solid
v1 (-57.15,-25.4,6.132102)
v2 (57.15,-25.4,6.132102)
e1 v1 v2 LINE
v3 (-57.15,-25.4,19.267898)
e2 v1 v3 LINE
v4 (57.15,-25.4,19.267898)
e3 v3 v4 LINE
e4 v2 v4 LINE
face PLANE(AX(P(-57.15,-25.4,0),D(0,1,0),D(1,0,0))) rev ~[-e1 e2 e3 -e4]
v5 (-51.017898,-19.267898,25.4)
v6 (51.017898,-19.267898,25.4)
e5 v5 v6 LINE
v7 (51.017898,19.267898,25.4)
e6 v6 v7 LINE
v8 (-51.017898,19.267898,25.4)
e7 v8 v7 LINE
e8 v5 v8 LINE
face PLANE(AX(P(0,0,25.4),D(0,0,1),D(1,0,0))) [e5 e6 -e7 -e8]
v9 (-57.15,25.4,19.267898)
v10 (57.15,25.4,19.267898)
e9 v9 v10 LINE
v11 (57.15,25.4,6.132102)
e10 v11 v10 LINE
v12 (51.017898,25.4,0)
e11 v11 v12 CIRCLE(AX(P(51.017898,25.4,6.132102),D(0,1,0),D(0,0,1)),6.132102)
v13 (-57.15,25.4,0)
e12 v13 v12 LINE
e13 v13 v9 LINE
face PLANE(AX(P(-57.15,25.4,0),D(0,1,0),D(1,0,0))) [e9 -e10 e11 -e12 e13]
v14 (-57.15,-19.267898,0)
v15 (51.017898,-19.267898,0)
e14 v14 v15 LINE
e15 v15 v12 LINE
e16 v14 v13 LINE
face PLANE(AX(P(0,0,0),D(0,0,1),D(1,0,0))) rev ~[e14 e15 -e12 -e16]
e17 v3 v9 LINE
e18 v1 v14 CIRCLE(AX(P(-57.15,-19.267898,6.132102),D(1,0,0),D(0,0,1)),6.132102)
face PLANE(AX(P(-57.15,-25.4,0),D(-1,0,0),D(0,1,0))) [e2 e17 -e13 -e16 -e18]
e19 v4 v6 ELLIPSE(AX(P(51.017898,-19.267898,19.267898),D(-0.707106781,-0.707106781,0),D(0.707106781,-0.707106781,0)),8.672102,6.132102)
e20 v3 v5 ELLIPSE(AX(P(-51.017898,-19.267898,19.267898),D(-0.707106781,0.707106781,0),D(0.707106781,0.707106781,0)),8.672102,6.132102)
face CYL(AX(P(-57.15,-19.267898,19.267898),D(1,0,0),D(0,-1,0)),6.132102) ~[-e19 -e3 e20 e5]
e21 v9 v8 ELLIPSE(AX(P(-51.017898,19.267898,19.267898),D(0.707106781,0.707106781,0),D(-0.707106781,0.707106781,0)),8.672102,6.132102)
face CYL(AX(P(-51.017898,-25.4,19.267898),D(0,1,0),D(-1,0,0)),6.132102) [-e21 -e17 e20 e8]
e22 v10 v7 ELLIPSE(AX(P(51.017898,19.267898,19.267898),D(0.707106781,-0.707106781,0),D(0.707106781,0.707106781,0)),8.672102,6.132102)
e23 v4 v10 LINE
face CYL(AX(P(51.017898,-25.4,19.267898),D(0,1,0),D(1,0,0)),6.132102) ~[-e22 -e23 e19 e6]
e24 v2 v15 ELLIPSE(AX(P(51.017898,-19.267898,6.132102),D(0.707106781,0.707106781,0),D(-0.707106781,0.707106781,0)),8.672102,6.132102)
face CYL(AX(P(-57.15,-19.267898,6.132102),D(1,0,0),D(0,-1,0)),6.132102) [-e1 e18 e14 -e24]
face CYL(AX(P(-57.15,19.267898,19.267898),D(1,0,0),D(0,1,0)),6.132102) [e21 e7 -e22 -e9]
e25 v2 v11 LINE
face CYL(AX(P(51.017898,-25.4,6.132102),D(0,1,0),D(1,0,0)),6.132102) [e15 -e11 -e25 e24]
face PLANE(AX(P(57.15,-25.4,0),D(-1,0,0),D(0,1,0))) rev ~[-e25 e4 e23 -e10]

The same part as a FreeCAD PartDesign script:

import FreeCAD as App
import Part
import Sketcher
from FreeCAD import Vector
Q = App.Units.Quantity


def edges_at(feature, points):
    """Names of the edges that pass closest to the given points."""
    edges = feature.Shape.Edges
    near = lambda p: min(range(len(edges)), key=lambda i: edges[i].distToShape(Part.Vertex(*p))[0])
    return sorted({f"Edge{near(p) + 1}" for p in points})


def add_polygon(sketch, points):
    """Adds a closed chain of lines whose ends are joined by coincident constraints."""
    first, n = sketch.GeometryCount, len(points)
    for a, b in zip(points, points[1:] + points[:1]):
        sketch.addGeometry(Part.LineSegment(App.Vector(*a, 0), App.Vector(*b, 0)), False)
    for i in range(n):
        sketch.addConstraint(Sketcher.Constraint("Coincident", first + i, 2, first + (i + 1) % n, 1))

doc = App.newDocument("Part")
body = doc.addObject("PartDesign::Body", "Body")

# Sketch on XY plane
sketch1 = body.newObject("Sketcher::SketchObject", "Sketch")
sketch1.AttachmentSupport = (doc.getObject("XY_Plane"), [""])
sketch1.MapMode = "FlatFace"
add_polygon(sketch1, [(-57, 25), (-57, -25), (57, -25), (57, 25)])  # lines 0-3
sketch1.addConstraint([
    Sketcher.Constraint("Vertical", 0),
    Sketcher.Constraint("Horizontal", 1),
    Sketcher.Constraint("Vertical", 2),
    Sketcher.Constraint("Horizontal", 3),
    Sketcher.Constraint("Symmetric", 0, 2, 2, 2, -1, 1),
    Sketcher.Constraint("DistanceY", 0, 2, 0, 1, Q("2 in")),
    Sketcher.Constraint("DistanceX", 1, 1, 1, 2, Q("4.5 in")),
])
pad1 = body.newObject("PartDesign::Pad", "Pad")
pad1.Profile = sketch1
pad1.Length = Q("1 in")
doc.recompute()

fillet = body.newObject("PartDesign::Fillet", "Fillet")
fillet.Base = (pad1, edges_at(pad1, [
    (57.15, 0, 0),
    (-57.15, 0, 25.4),
    (0, -25.4, 25.4),
    (0, 25.4, 25.4),
    (57.15, 0, 25.4),
    (0, -25.4, 0),
]))
fillet.Radius = 6.132102

doc.recompute()
